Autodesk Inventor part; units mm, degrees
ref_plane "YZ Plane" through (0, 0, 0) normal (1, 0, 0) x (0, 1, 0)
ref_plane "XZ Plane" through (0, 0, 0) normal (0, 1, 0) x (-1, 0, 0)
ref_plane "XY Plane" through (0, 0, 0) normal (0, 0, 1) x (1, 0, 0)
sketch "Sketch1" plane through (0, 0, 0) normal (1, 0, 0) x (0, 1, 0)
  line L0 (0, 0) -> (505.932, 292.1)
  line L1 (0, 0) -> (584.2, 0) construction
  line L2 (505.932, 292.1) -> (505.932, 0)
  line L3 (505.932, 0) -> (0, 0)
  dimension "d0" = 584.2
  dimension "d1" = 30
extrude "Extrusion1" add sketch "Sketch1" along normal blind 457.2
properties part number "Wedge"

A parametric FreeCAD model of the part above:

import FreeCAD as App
import Part
import Sketcher
from FreeCAD import Vector
Q = App.Units.Quantity


def add_polygon(sketch, points):
    """Adds a closed chain of lines whose ends are joined by coincident constraints."""
    first, n = sketch.GeometryCount, len(points)
    for a, b in zip(points, points[1:] + points[:1]):
        sketch.addGeometry(Part.LineSegment(App.Vector(*a, 0), App.Vector(*b, 0)), False)
    for i in range(n):
        sketch.addConstraint(Sketcher.Constraint("Coincident", first + i, 2, first + (i + 1) % n, 1))

doc = App.newDocument("Part")
params = doc.addObject("Spreadsheet::Sheet", "Params")
for row, (alias, value) in enumerate([
    ("sketch1_length", "23 in"),
    ("sketch1_height", "11.5 in"),
    ("pad1_length", "18 in"),
], start=1):
    params.set(f"A{row}", alias)
    params.set(f"B{row}", "=" + value)
    params.setAlias(f"B{row}", alias)

body = doc.addObject("PartDesign::Body", "Body")

# Sketch on YZ plane
sketch1 = doc.addObject("Sketcher::SketchObject", "Sketch")
body.addObject(sketch1)
sketch1.AttachmentSupport = (doc.YZ_Plane, [""])
sketch1.MapMode = "FlatFace"
add_polygon(sketch1, [(506, 292), (0, 0), (506, 0)])  # lines 0-2
sketch1.addConstraint(Sketcher.Constraint("Horizontal", 1))
sketch1.addConstraint(Sketcher.Constraint("Vertical", 2))
sketch1.addConstraint(Sketcher.Constraint("Coincident", 0, 2, -1, 1))
sketch1.addConstraint(Sketcher.Constraint("Distance", 0, Q("23 in")))
sketch1.addConstraint(Sketcher.Constraint("DistanceY", 2, 1, 2, 2, Q("11.5 in")))
sketch1.setExpression("Constraints[6]", "Params.sketch1_length")
sketch1.setExpression("Constraints[7]", "Params.sketch1_height")
pad1 = doc.addObject("PartDesign::Pad", "Pad")
body.addObject(pad1)
pad1.Profile = sketch1
pad1.setExpression("Length", "Params.pad1_length")

doc.recompute()
